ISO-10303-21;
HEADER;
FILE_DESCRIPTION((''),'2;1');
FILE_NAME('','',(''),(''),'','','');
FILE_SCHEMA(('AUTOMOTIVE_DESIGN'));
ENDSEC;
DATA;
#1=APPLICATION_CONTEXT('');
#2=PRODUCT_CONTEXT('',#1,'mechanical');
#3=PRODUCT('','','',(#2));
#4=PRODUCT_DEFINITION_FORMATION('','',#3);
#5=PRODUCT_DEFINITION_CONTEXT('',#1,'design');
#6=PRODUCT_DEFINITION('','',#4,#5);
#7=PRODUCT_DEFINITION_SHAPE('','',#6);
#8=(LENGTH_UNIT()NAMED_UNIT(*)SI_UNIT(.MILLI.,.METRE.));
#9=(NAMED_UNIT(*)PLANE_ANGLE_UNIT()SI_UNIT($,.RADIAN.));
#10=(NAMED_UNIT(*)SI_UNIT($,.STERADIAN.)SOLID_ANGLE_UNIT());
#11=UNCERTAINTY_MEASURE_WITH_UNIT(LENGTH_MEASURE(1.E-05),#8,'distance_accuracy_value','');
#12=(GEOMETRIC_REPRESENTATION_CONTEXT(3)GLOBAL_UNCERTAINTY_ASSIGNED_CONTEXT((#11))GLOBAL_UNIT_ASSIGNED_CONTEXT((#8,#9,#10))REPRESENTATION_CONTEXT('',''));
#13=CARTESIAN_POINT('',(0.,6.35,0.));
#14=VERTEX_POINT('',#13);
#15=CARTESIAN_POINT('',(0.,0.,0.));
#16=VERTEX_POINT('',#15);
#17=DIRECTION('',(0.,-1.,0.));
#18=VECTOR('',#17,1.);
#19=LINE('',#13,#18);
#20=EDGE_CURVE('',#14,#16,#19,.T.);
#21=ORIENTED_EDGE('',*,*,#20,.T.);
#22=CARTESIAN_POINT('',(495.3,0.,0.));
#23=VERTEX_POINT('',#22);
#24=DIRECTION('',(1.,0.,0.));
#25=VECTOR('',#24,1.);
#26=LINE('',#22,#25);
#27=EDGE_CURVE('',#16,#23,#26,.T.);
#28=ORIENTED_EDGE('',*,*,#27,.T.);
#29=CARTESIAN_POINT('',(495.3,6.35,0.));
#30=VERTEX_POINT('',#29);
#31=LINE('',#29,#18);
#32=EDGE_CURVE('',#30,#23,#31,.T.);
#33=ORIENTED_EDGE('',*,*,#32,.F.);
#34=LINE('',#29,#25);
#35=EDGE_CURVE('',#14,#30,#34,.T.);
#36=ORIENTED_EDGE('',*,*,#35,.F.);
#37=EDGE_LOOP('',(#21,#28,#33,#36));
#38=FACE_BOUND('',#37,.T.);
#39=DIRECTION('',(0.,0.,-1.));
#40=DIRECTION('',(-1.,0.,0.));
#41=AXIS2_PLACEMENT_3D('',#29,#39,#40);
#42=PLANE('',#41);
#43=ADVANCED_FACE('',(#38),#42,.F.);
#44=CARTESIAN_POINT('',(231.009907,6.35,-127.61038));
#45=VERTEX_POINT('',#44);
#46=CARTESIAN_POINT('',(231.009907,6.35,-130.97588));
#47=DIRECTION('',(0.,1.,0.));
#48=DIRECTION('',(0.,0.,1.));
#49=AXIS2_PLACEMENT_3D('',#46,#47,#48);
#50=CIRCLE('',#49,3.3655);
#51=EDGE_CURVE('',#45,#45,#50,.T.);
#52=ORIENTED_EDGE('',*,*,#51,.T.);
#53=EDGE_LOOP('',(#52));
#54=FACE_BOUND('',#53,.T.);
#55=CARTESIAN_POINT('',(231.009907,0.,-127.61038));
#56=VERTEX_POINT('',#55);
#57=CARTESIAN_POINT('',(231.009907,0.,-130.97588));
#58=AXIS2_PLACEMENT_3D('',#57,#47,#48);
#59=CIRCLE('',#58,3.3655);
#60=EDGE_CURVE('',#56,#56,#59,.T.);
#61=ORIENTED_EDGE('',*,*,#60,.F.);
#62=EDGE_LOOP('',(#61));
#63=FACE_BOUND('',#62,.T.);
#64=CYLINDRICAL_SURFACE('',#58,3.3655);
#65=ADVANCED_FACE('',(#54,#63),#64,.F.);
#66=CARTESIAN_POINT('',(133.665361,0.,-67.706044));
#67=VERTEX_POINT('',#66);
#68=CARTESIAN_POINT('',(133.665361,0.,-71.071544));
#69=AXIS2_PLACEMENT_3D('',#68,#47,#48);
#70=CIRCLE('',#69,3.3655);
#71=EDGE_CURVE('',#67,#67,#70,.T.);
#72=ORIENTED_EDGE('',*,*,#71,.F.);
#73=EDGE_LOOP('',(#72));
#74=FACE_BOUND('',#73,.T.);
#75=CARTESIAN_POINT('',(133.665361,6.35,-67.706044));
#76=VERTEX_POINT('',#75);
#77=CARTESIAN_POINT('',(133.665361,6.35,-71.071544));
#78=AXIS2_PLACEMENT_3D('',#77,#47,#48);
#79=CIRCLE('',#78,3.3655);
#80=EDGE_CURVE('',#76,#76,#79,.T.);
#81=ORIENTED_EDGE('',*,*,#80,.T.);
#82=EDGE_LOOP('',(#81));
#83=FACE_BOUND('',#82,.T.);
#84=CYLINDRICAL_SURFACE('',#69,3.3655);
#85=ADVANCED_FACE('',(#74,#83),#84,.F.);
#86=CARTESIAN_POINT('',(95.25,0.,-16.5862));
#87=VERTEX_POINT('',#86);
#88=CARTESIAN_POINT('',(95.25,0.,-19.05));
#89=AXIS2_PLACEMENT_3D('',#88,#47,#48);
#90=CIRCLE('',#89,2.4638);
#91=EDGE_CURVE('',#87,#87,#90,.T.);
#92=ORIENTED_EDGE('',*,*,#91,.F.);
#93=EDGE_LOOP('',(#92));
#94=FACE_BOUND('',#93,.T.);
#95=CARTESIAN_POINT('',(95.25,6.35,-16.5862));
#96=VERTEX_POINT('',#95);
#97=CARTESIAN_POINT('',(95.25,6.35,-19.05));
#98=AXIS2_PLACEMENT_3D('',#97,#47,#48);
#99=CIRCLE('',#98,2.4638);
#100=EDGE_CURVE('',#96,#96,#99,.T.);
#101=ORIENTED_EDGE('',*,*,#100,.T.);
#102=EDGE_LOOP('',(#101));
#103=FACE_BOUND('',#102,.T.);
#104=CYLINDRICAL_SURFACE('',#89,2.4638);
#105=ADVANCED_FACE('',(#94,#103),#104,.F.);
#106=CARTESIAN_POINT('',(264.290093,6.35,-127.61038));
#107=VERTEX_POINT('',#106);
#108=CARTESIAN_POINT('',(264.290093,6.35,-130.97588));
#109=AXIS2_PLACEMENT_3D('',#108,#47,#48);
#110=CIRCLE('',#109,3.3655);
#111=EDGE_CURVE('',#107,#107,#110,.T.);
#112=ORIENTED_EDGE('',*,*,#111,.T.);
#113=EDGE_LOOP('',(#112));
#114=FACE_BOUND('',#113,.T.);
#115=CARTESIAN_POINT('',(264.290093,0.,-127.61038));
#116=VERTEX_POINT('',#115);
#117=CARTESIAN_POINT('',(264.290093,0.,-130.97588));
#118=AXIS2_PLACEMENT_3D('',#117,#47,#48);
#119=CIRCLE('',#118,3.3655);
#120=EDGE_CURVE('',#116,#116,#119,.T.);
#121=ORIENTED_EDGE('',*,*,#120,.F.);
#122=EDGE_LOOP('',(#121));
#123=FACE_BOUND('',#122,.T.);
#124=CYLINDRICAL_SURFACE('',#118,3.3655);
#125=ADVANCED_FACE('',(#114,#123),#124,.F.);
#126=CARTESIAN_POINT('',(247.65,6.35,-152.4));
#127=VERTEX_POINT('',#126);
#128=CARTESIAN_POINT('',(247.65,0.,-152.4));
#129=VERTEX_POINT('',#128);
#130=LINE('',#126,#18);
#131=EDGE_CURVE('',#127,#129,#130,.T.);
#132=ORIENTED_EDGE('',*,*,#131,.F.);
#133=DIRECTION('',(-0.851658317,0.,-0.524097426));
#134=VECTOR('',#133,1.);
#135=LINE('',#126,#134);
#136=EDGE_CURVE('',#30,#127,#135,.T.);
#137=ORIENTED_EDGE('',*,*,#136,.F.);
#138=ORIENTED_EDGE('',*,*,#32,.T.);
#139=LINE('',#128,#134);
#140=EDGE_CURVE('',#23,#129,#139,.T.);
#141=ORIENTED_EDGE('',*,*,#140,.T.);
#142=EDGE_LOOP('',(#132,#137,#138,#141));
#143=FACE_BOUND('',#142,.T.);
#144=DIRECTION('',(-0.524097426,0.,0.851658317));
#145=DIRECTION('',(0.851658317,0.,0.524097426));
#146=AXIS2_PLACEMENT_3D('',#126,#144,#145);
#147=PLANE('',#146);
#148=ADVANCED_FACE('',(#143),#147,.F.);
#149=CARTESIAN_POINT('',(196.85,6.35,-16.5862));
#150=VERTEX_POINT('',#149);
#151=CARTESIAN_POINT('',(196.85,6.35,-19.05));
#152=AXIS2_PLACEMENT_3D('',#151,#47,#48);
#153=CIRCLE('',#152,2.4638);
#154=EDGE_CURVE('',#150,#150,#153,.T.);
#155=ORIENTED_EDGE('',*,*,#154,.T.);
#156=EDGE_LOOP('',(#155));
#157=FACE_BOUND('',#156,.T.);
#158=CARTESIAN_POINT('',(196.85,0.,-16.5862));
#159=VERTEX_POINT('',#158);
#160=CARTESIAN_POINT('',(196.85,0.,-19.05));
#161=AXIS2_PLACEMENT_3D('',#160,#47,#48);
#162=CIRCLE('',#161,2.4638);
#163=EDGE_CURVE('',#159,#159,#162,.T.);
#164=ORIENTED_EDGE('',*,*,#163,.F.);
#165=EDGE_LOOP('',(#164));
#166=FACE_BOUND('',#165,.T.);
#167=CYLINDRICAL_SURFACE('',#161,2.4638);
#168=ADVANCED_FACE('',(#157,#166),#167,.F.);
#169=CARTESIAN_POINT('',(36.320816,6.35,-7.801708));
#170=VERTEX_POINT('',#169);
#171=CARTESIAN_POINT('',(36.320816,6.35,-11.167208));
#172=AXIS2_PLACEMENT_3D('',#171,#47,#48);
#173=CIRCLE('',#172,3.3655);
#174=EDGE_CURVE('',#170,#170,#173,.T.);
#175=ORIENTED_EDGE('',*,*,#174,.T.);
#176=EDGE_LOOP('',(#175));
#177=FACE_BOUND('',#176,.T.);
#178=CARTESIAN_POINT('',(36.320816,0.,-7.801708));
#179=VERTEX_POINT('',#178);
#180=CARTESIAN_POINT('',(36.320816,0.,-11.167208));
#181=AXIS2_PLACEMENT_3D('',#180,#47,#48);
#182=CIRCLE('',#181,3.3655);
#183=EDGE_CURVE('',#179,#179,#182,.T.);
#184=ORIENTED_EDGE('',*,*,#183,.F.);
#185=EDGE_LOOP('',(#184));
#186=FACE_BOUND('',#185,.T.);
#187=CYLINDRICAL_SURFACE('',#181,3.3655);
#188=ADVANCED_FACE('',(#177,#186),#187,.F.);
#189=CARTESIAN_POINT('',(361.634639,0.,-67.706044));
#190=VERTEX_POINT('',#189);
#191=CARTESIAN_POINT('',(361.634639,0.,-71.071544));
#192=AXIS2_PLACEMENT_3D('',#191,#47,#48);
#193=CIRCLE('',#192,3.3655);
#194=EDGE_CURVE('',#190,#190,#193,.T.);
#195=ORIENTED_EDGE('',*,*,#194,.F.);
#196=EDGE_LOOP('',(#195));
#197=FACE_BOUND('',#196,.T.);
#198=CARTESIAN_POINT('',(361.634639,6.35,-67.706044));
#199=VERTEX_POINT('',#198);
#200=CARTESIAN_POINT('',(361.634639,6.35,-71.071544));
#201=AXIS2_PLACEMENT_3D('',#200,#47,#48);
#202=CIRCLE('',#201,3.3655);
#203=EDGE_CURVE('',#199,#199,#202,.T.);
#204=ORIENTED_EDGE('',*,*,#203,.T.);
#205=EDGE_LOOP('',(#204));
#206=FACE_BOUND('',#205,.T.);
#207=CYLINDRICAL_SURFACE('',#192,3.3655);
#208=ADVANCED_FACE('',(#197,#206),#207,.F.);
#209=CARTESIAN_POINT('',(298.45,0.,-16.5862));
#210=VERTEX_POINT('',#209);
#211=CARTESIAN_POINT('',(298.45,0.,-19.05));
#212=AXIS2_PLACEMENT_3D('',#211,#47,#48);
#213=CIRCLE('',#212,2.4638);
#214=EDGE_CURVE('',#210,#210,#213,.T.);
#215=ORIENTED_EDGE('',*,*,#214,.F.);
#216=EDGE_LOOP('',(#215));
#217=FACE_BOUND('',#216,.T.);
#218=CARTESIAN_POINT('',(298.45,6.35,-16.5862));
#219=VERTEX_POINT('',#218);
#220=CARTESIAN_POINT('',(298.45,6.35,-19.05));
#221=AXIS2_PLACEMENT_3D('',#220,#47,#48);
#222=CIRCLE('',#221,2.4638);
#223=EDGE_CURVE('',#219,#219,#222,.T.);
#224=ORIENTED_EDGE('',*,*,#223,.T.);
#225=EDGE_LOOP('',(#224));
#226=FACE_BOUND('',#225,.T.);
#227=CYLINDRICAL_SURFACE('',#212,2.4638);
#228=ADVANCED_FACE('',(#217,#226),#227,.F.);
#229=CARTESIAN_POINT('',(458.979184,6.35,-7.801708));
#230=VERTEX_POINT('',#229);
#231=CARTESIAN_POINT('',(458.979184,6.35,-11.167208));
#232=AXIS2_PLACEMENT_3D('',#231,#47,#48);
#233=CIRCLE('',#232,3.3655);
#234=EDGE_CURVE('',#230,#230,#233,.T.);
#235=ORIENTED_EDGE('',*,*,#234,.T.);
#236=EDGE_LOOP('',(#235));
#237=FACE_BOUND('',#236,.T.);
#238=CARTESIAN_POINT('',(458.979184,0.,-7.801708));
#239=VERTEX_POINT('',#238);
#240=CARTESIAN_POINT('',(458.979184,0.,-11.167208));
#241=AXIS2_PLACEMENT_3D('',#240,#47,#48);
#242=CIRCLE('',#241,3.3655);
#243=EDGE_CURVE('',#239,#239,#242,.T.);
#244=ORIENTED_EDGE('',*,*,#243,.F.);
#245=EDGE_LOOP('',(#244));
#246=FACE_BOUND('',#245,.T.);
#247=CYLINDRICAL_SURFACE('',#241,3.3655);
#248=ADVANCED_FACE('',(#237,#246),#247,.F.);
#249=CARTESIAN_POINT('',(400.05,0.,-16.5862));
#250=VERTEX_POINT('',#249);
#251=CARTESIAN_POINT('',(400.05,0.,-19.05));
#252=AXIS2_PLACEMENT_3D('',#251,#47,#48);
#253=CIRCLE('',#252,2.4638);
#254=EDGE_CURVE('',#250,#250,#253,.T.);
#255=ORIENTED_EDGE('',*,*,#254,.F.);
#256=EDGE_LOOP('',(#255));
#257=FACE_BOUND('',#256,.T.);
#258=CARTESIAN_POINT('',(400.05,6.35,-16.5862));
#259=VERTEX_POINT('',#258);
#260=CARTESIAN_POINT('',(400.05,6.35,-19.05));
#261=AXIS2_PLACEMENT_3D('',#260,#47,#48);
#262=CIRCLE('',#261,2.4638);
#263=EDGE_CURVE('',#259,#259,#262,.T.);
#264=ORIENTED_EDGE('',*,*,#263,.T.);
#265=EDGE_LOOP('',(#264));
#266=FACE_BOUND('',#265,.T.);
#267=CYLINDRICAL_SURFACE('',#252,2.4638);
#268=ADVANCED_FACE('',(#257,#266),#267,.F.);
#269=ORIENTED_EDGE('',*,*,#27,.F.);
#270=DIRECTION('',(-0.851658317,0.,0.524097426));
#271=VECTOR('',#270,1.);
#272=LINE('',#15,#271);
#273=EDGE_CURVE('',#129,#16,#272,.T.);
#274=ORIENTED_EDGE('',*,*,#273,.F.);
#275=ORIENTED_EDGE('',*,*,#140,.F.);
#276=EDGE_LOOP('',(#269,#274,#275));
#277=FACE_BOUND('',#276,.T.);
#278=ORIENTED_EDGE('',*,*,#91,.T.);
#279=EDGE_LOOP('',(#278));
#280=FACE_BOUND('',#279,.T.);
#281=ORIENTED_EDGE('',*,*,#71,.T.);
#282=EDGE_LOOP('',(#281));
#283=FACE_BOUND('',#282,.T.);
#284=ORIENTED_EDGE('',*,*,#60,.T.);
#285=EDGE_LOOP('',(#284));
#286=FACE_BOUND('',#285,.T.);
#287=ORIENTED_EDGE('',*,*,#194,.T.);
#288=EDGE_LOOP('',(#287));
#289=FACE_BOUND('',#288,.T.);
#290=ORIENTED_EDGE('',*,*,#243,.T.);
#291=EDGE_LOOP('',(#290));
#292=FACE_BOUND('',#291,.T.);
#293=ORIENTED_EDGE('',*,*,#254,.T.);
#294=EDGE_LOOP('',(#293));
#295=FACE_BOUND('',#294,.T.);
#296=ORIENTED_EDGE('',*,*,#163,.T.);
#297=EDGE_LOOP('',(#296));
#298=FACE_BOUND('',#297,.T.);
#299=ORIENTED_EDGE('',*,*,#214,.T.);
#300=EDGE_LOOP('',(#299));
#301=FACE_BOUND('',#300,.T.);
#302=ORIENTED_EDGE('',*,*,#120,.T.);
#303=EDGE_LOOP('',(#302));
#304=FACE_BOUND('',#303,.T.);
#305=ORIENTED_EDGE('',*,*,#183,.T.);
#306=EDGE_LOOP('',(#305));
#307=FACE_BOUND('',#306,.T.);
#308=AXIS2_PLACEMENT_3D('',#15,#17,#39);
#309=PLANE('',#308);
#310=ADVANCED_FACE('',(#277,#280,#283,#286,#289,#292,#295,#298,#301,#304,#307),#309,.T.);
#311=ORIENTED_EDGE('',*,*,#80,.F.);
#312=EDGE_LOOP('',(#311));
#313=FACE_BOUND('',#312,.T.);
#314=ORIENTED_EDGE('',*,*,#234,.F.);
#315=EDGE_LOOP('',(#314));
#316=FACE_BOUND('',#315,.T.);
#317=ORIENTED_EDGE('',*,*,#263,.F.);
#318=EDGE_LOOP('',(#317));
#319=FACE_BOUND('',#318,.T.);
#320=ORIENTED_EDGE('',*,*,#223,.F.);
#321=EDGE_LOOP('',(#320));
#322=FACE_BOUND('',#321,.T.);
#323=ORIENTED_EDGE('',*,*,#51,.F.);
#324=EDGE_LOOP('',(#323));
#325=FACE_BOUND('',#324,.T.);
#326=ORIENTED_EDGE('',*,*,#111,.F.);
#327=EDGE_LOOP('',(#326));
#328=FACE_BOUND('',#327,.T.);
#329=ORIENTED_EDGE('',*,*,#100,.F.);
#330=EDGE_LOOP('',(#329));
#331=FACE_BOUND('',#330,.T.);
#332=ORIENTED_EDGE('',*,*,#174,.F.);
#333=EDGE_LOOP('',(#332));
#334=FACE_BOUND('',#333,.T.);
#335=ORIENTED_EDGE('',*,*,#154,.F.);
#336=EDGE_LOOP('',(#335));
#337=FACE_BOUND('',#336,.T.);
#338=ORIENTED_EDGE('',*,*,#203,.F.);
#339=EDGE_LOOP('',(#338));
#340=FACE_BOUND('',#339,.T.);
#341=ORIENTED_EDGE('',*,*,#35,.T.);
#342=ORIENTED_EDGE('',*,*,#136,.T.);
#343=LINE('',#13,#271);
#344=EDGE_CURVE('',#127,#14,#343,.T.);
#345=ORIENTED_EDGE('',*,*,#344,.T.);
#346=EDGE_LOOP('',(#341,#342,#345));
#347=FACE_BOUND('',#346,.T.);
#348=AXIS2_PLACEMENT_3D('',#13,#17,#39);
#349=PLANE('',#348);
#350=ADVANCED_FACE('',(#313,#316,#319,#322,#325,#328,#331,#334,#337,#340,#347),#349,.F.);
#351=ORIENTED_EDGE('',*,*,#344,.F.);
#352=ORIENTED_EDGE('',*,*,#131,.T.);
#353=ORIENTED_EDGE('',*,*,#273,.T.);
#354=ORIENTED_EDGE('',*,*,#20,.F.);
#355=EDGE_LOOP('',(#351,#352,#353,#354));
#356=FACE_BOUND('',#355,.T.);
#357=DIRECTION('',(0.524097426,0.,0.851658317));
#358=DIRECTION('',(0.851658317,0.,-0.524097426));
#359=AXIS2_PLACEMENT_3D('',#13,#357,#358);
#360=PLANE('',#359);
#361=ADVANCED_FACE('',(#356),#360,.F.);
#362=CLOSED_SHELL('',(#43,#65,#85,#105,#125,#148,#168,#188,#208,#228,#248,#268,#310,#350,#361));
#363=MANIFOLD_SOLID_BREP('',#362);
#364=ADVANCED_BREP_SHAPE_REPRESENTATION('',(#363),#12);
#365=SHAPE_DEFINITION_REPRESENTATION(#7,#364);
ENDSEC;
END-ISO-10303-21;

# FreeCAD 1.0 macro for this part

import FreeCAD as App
import Part
import Sketcher
Q = App.Units.Quantity

doc = App.newDocument("Part")
params = doc.addObject("Spreadsheet::Sheet", "Params")
for row, (alias, value) in enumerate([
    ("sketch1_width", "19.5 in"),
    ("pad1_length", "0.25 in"),
    ("sketch2_diameter", "0.194 in"),
    ("linearpattern_pitch", "4 in"),
    ("sketch3_diameter", "0.265 in"),
], start=1):
    params.set(f"A{row}", alias)
    params.set(f"B{row}", "=" + value)
    params.setAlias(f"B{row}", alias)

body = doc.addObject("PartDesign::Body", "Body")

sketch1 = body.newObject("Sketcher::SketchObject", "Sketch")
sketch1.AttachmentSupport = (doc.getObject("XZ_Plane"), [""])
sketch1.MapMode = "FlatFace"
sketch1.addGeometry([
    Part.LineSegment(App.Vector(247.65, -152.4, 0), App.Vector(0, 0, 0)),
    Part.LineSegment(App.Vector(0, 0, 0), App.Vector(495.3, 0, 0)),
    Part.LineSegment(App.Vector(495.3, 0, 0), App.Vector(247.65, -152.4, 0)),
], False)
sketch1.addConstraint([
    Sketcher.Constraint("Coincident", 0, 2, 1, 1),
    Sketcher.Constraint("Coincident", 1, 2, 2, 1),
    Sketcher.Constraint("Coincident", 2, 2, 0, 1),
    Sketcher.Constraint("Horizontal", 1),
    Sketcher.Constraint("Coincident", 0, 2, -1, 1),
    Sketcher.Constraint("Equal", 0, 2),
    Sketcher.Constraint("DistanceX", 1, 1, 1, 2, Q("19.5 in")),
    Sketcher.Constraint("DistanceY", 2, 2, -1, 1, Q("6 in")),
])
sketch1.setExpression("Constraints[6]", "Params.sketch1_width")
pad1 = body.newObject("PartDesign::Pad", "Pad")
pad1.Profile = sketch1
pad1.setExpression("Length", "Params.pad1_length")
pad1.Reversed = True

sketch2 = body.newObject("Sketcher::SketchObject", "Sketch001")
sketch2.AttachmentSupport = (doc.getObject("XZ_Plane"), [""])
sketch2.MapMode = "FlatFace"
sketch2.AttachmentOffset = App.Placement(App.Vector(0, 0, -0.25 * 25.4), App.Rotation())
sketch2.addGeometry(Part.Circle(App.Vector(95.25, -19.05, 0), App.Vector(0, 0, 1), 2.4638), False)
sketch2.addConstraint([
    Sketcher.Constraint("Diameter", 0, Q("0.194 in")),
    Sketcher.Constraint("DistanceX", -1, 1, 0, 3, Q("3.75 in")),
    Sketcher.Constraint("DistanceY", 0, 3, -1, 1, Q("0.75 in")),
])
sketch2.setExpression("Constraints[0]", "Params.sketch2_diameter")
pocket1 = body.newObject("PartDesign::Pocket", "Pocket")
pocket1.Profile = sketch2
pocket1.Type = "ThroughAll"
pocket1.Reversed = True
doc.recompute()

linearpattern = body.newObject("PartDesign::LinearPattern", "LinearPattern")
linearpattern.Originals = [pocket1]
linearpattern.Direction = (doc.getObject("X_Axis"), [""])
linearpattern.Mode = "offset"
linearpattern.setExpression("Offset", "Params.linearpattern_pitch")
linearpattern.Occurrences = 4
body.Tip = linearpattern

sketch3 = body.newObject("Sketcher::SketchObject", "Sketch002")
sketch3.AttachmentSupport = (doc.getObject("XZ_Plane"), [""])
sketch3.MapMode = "FlatFace"
sketch3.AttachmentOffset = App.Placement(App.Vector(0, 0, -0.25 * 25.4), App.Rotation())
sketch3.addGeometry([
    Part.Circle(App.Vector(231.009907, -130.97588, 0), App.Vector(0, 0, 1), 3.3655),
    Part.Circle(App.Vector(133.665361, -71.071544, 0), App.Vector(0, 0, 1), 3.3655),
    Part.Circle(App.Vector(36.320816, -11.167208, 0), App.Vector(0, 0, 1), 3.3655),
    Part.Circle(App.Vector(264.290093, -130.97588, 0), App.Vector(0, 0, 1), 3.3655),
    Part.Circle(App.Vector(361.634639, -71.071544, 0), App.Vector(0, 0, 1), 3.3655),
    Part.Circle(App.Vector(458.979184, -11.167208, 0), App.Vector(0, 0, 1), 3.3655),
], False)
sketch3.addConstraint([
    Sketcher.Constraint("Equal", 0, 1),
    Sketcher.Constraint("Equal", 1, 2),
    Sketcher.Constraint("Equal", 2, 3),
    Sketcher.Constraint("Equal", 3, 4),
    Sketcher.Constraint("Equal", 4, 5),
    Sketcher.Constraint("Horizontal", 0, 3, 3, 3),
    Sketcher.Constraint("Horizontal", 1, 3, 4, 3),
    Sketcher.Constraint("Horizontal", 2, 3, 5, 3),
    Sketcher.Constraint("Diameter", 0, Q("0.265 in")),
    Sketcher.Constraint("DistanceY", 0, 3, -1, 1, Q("130.97588 mm")),
    Sketcher.Constraint("DistanceX", -1, 1, 1, 3, Q("133.665361 mm")),
    Sketcher.Constraint("DistanceY", 2, 3, -1, 1, Q("11.167208 mm")),
    Sketcher.Constraint("DistanceX", -1, 1, 4, 3, Q("361.634639 mm")),
    Sketcher.Constraint("DistanceX", 2, 3, 0, 3, Q("194.689091 mm")),
    Sketcher.Constraint("DistanceX", 3, 3, 5, 3, Q("194.689091 mm")),
    Sketcher.Constraint("DistanceX", 2, 3, 5, 3, Q("422.658369 mm")),
    Sketcher.Constraint("DistanceX", -1, 1, 0, 3, Q("231.009907 mm")),
    Sketcher.Constraint("DistanceY", 1, 3, -1, 1, Q("71.071544 mm")),
])
sketch3.setExpression("Constraints[8]", "Params.sketch3_diameter")
pocket2 = body.newObject("PartDesign::Pocket", "Pocket001")
pocket2.Profile = sketch3
pocket2.Type = "ThroughAll"
pocket2.Reversed = True

doc.recompute()
